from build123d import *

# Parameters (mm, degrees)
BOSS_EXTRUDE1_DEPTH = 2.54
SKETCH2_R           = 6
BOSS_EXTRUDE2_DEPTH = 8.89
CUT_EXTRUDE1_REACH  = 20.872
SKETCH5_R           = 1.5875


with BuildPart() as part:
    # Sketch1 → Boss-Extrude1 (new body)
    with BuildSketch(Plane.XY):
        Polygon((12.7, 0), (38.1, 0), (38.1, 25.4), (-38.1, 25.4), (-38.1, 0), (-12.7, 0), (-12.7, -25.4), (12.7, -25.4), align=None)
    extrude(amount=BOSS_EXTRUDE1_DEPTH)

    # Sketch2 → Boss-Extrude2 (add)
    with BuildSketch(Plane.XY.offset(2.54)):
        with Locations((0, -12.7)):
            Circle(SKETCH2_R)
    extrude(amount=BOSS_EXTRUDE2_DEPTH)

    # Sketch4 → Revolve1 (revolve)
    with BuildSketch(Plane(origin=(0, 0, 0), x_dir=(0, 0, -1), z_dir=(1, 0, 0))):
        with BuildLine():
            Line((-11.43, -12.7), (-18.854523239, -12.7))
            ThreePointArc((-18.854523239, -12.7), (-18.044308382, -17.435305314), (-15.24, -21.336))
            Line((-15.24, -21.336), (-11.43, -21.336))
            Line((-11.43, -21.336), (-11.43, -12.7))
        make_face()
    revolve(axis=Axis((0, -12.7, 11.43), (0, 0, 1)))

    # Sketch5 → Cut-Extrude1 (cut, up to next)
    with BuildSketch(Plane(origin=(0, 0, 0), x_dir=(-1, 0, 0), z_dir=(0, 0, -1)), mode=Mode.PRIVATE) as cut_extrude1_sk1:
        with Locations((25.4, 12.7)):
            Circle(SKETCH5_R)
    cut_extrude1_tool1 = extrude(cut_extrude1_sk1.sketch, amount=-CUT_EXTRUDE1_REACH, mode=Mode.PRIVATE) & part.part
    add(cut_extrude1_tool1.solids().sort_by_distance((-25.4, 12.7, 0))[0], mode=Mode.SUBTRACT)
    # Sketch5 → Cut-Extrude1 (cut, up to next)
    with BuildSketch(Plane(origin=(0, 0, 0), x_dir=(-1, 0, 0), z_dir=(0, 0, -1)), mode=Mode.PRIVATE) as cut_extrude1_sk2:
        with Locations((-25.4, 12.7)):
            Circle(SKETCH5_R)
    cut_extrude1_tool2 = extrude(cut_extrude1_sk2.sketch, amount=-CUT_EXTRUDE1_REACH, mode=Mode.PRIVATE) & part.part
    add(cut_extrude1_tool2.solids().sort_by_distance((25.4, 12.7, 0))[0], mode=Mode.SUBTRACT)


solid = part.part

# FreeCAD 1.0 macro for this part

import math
import FreeCAD as App
import Part
import Sketcher
Q = App.Units.Quantity


def add_polygon(sketch, points):
    """Adds a closed chain of lines whose ends are joined by coincident constraints."""
    first, n = sketch.GeometryCount, len(points)
    for a, b in zip(points, points[1:] + points[:1]):
        sketch.addGeometry(Part.LineSegment(App.Vector(*a, 0), App.Vector(*b, 0)), False)
    for i in range(n):
        sketch.addConstraint(Sketcher.Constraint("Coincident", first + i, 2, first + (i + 1) % n, 1))

doc = App.newDocument("Part")
body = doc.addObject("PartDesign::Body", "Body")

# Sketch on XY plane
sketch1 = body.newObject("Sketcher::SketchObject", "Sketch")
sketch1.AttachmentSupport = (doc.getObject("XY_Plane"), [""])
sketch1.MapMode = "FlatFace"
add_polygon(sketch1, [(13, 0), (38, 0), (38, 25), (-38, 25), (-38, 0), (-13, 0), (-13, -25), (13, -25)])  # lines 0-7
sketch1.addConstraint([
    Sketcher.Constraint("Horizontal", 0),
    Sketcher.Constraint("Vertical", 1),
    Sketcher.Constraint("Horizontal", 2),
    Sketcher.Constraint("Vertical", 3),
    Sketcher.Constraint("Horizontal", 4),
    Sketcher.Constraint("Vertical", 5),
    Sketcher.Constraint("Horizontal", 6),
    Sketcher.Constraint("Vertical", 7),
    Sketcher.Constraint("Symmetric", 0, 2, 3, 2, -1, 1),
    Sketcher.Constraint("Symmetric", 4, 2, 7, 2, -2),
    Sketcher.Constraint("Equal", 4, 6),
    Sketcher.Constraint("Equal", 6, 1),
    Sketcher.Constraint("Equal", 3, 5),
    Sketcher.Constraint("DistanceX", 0, 1, 0, 2, Q("1 in")),
])
pad1 = body.newObject("PartDesign::Pad", "Pad")
pad1.Profile = sketch1
pad1.Length = Q("0.1 in")

# Sketch on XY plane
sketch2 = body.newObject("Sketcher::SketchObject", "Sketch001")
sketch2.AttachmentSupport = (doc.getObject("XY_Plane"), [""])
sketch2.MapMode = "FlatFace"
sketch2.AttachmentOffset = App.Placement(App.Vector(0, 0, 0.1 * 25.4), App.Rotation())
sketch2.addGeometry(Part.Circle(App.Vector(0, -13, 0), App.Vector(0, 0, 1), 6), False)
sketch2.addConstraint([
    Sketcher.Constraint("PointOnObject", 0, 3, -2),
    Sketcher.Constraint("DistanceY", 0, 3, -1, 1, Q("0.5 in")),
    Sketcher.Constraint("Diameter", 0, Q("12 mm")),
])
pad2 = body.newObject("PartDesign::Pad", "Pad001")
pad2.Profile = sketch2
pad2.Length = Q("0.35 in")

# Sketch on YZ plane
sketch3 = body.newObject("Sketcher::SketchObject", "Sketch002")
sketch3.AttachmentSupport = (doc.getObject("YZ_Plane"), [""])
sketch3.MapMode = "FlatFace"
sketch3.addGeometry([
    Part.LineSegment(App.Vector(-12.7, 11.4, 0), App.Vector(-12.7, 18.9, 0)),
    Part.ArcOfCircle(Part.Circle(App.Vector(-13.3, 8.2, 0), App.Vector(0, 0, 1), 10.7), math.radians(87), math.radians(139)),
    Part.LineSegment(App.Vector(-21.3, 15.2, 0), App.Vector(-21.3, 11.4, 0)),
    Part.LineSegment(App.Vector(-21.3, 11.4, 0), App.Vector(-12.7, 11.4, 0)),
], False)
sketch3.addGeometry(Part.LineSegment(App.Vector(-12.7, 8.2, 0), App.Vector(-12.7, 18.9, 0)), True)  # axis
sketch3.addConstraint([
    Sketcher.Constraint("Coincident", 0, 2, 1, 1),
    Sketcher.Constraint("Coincident", 1, 2, 2, 1),
    Sketcher.Constraint("Coincident", 2, 2, 3, 1),
    Sketcher.Constraint("Coincident", 3, 2, 0, 1),
    Sketcher.Constraint("Vertical", 0),
    Sketcher.Constraint("Vertical", 2),
    Sketcher.Constraint("Horizontal", 3),
    Sketcher.Constraint("Vertical", 4),
    Sketcher.Constraint("Coincident", 4, 2, 0, 2),
    Sketcher.Constraint("Horizontal", 1, 3, 4, 1),
    Sketcher.Constraint("DistanceX", 3, 1, 3, 2, Q("0.34 in")),
    Sketcher.Constraint("DistanceY", 2, 2, 2, 1, Q("0.15 in")),
    Sketcher.Constraint("DistanceX", 0, 2, -1, 1, Q("0.5 in")),
    Sketcher.Constraint("DistanceY", -1, 1, 1, 2, Q("0.6 in")),
    Sketcher.Constraint("Radius", 1, Q("10.676538 mm")),
    Sketcher.Constraint("DistanceY", 0, 1, 0, 2, Q("7.424523 mm")),
])
revolution = body.newObject("PartDesign::Revolution", "Revolution")
revolution.Profile = sketch3
revolution.ReferenceAxis = (sketch3, ["Axis0"])
revolution.Angle = 360

# Sketch on XY plane
sketch4 = body.newObject("Sketcher::SketchObject", "Sketch003")
sketch4.AttachmentSupport = (doc.getObject("XY_Plane"), [""])
sketch4.MapMode = "FlatFace"
sketch4.addGeometry(Part.Circle(App.Vector(-25.4, 12.7, 0), App.Vector(0, 0, 1), 1.6), False)
sketch4.addConstraint([
    Sketcher.Constraint("Diameter", 0, Q("0.125 in")),
    Sketcher.Constraint("DistanceX", 0, 3, -1, 1, Q("1 in")),
    Sketcher.Constraint("DistanceY", -1, 1, 0, 3, Q("0.5 in")),
])
pocket1 = body.newObject("PartDesign::Pocket", "Pocket")
pocket1.Profile = sketch4
pocket1.Type = "UpToFirst"
pocket1.Reversed = True

# Sketch on XY plane
sketch5 = body.newObject("Sketcher::SketchObject", "Sketch004")
sketch5.AttachmentSupport = (doc.getObject("XY_Plane"), [""])
sketch5.MapMode = "FlatFace"
sketch5.addGeometry(Part.Circle(App.Vector(25.4, 12.7, 0), App.Vector(0, 0, 1), 1.6), False)
sketch5.addConstraint([
    Sketcher.Constraint("Diameter", 0, Q("0.125 in")),
    Sketcher.Constraint("DistanceX", -1, 1, 0, 3, Q("1 in")),
    Sketcher.Constraint("DistanceY", -1, 1, 0, 3, Q("0.5 in")),
])
pocket2 = body.newObject("PartDesign::Pocket", "Pocket001")
pocket2.Profile = sketch5
pocket2.Type = "UpToFirst"
pocket2.Reversed = True

doc.recompute()
